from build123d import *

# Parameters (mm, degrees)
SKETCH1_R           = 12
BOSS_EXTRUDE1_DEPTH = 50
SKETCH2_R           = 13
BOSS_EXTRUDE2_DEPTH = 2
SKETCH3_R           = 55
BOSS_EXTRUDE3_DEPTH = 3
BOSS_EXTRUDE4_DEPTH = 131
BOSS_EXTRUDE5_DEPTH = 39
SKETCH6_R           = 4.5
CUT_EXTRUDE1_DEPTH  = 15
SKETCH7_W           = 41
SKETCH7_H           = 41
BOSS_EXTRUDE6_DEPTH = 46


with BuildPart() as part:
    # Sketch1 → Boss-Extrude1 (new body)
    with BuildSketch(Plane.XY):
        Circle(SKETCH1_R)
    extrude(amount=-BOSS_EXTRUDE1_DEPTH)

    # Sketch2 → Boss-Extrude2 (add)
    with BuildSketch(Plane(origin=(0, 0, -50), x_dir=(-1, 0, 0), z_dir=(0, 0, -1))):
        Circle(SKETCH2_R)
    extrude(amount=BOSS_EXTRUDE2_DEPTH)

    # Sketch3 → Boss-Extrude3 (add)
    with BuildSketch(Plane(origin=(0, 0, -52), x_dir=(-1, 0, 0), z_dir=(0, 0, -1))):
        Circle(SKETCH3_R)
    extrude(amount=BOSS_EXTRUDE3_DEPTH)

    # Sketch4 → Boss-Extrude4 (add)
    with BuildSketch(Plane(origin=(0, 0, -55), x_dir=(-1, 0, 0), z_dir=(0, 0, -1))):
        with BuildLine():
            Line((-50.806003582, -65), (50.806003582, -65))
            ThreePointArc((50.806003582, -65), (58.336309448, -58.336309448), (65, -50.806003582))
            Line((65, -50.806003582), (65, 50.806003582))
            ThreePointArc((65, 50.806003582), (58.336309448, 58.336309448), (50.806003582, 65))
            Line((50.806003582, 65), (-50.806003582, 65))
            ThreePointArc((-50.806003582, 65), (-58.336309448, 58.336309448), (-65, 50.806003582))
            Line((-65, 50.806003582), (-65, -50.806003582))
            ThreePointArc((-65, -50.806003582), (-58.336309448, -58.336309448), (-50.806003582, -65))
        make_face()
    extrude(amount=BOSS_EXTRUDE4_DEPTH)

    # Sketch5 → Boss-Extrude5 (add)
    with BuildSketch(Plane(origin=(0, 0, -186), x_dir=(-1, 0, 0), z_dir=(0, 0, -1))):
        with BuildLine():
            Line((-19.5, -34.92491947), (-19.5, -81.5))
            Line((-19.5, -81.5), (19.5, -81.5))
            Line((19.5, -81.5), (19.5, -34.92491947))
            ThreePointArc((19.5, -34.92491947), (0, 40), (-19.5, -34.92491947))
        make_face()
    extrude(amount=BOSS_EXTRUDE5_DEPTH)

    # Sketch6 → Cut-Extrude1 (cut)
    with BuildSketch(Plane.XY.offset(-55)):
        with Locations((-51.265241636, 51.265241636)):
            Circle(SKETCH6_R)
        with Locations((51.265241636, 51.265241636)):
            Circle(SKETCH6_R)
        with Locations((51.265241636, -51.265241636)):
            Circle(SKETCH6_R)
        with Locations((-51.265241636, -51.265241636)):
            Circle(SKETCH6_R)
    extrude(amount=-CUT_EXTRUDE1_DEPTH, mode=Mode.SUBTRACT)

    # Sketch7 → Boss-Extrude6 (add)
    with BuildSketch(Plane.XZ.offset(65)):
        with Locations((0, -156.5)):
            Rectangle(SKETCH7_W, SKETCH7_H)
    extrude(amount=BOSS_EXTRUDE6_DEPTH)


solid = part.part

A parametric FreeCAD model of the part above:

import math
import FreeCAD as App
import Part
import Sketcher


def add_polygon(sketch, points):
    """Adds a closed chain of lines whose ends are joined by coincident constraints."""
    first, n = sketch.GeometryCount, len(points)
    for a, b in zip(points, points[1:] + points[:1]):
        sketch.addGeometry(Part.LineSegment(App.Vector(*a, 0), App.Vector(*b, 0)), False)
    for i in range(n):
        sketch.addConstraint(Sketcher.Constraint("Coincident", first + i, 2, first + (i + 1) % n, 1))

doc = App.newDocument("Part")
body = doc.addObject("PartDesign::Body", "Body")

# Sketch on XY plane
sketch1 = body.newObject("Sketcher::SketchObject", "Sketch")
sketch1.AttachmentSupport = (doc.getObject("XY_Plane"), [""])
sketch1.MapMode = "FlatFace"
sketch1.addGeometry(Part.Circle(App.Vector(0, 0, 0), App.Vector(0, 0, 1), 12), False)
sketch1.addConstraint([
    Sketcher.Constraint("Coincident", 0, 3, -1, 1),
    Sketcher.Constraint("Diameter", 0, 24.0),
])
pad1 = body.newObject("PartDesign::Pad", "Pad")
pad1.Profile = sketch1
pad1.Length = 50
pad1.Reversed = True

# Sketch on XY plane
sketch2 = body.newObject("Sketcher::SketchObject", "Sketch001")
sketch2.AttachmentSupport = (doc.getObject("XY_Plane"), [""])
sketch2.MapMode = "FlatFace"
sketch2.AttachmentOffset = App.Placement(App.Vector(0, 0, -50), App.Rotation())
sketch2.addGeometry(Part.Circle(App.Vector(0, 0, 0), App.Vector(0, 0, 1), 13), False)
sketch2.addConstraint([
    Sketcher.Constraint("Coincident", 0, 3, -1, 1),
    Sketcher.Constraint("Diameter", 0, 26.0),
])
pad2 = body.newObject("PartDesign::Pad", "Pad001")
pad2.Profile = sketch2
pad2.Length = 2
pad2.Reversed = True

# Sketch on XY plane
sketch3 = body.newObject("Sketcher::SketchObject", "Sketch002")
sketch3.AttachmentSupport = (doc.getObject("XY_Plane"), [""])
sketch3.MapMode = "FlatFace"
sketch3.AttachmentOffset = App.Placement(App.Vector(0, 0, -52), App.Rotation())
sketch3.addGeometry(Part.Circle(App.Vector(0, 0, 0), App.Vector(0, 0, 1), 55), False)
sketch3.addConstraint([
    Sketcher.Constraint("Coincident", 0, 3, -1, 1),
    Sketcher.Constraint("Diameter", 0, 110.0),
])
pad3 = body.newObject("PartDesign::Pad", "Pad002")
pad3.Profile = sketch3
pad3.Length = 3
pad3.Reversed = True

# Sketch on XY plane
sketch4 = body.newObject("Sketcher::SketchObject", "Sketch003")
sketch4.AttachmentSupport = (doc.getObject("XY_Plane"), [""])
sketch4.MapMode = "FlatFace"
sketch4.AttachmentOffset = App.Placement(App.Vector(0, 0, -55), App.Rotation())
sketch4.addGeometry([
    Part.LineSegment(App.Vector(51, -65, 0), App.Vector(-51, -65, 0)),  # 0
    Part.ArcOfCircle(Part.Circle(App.Vector(0, 0, 0), App.Vector(0, 0, 1), 82), math.radians(-141.99), math.radians(-128.01)),  # 1
    Part.LineSegment(App.Vector(-65, -51, 0), App.Vector(-65, 51, 0)),  # 2
    Part.ArcOfCircle(Part.Circle(App.Vector(0, 0, 0), App.Vector(0, 0, 1), 82), math.radians(128.01), math.radians(141.99)),  # 3
    Part.LineSegment(App.Vector(-51, 65, 0), App.Vector(51, 65, 0)),  # 4
    Part.ArcOfCircle(Part.Circle(App.Vector(0, 0, 0), App.Vector(0, 0, 1), 82), math.radians(38.01), math.radians(51.99)),  # 5
    Part.LineSegment(App.Vector(65, 51, 0), App.Vector(65, -51, 0)),  # 6
    Part.ArcOfCircle(Part.Circle(App.Vector(0, 0, 0), App.Vector(0, 0, 1), 82), math.radians(-51.99), math.radians(-38.01)),  # 7
], False)
sketch4.addConstraint([
    Sketcher.Constraint("Coincident", 0, 2, 1, 2),
    Sketcher.Constraint("Coincident", 1, 1, 2, 1),
    Sketcher.Constraint("Coincident", 2, 2, 3, 2),
    Sketcher.Constraint("Coincident", 3, 1, 4, 1),
    Sketcher.Constraint("Coincident", 4, 2, 5, 2),
    Sketcher.Constraint("Coincident", 5, 1, 6, 1),
    Sketcher.Constraint("Coincident", 6, 2, 7, 2),
    Sketcher.Constraint("Coincident", 7, 1, 0, 1),
    Sketcher.Constraint("Horizontal", 0),
    Sketcher.Constraint("Vertical", 2),
    Sketcher.Constraint("Horizontal", 4),
    Sketcher.Constraint("Vertical", 6),
    Sketcher.Constraint("Coincident", 1, 3, -1, 1),
    Sketcher.Constraint("Coincident", 3, 3, -1, 1),
    Sketcher.Constraint("Coincident", 5, 3, -1, 1),
    Sketcher.Constraint("Coincident", 7, 3, -1, 1),
    Sketcher.Constraint("Equal", 1, 3),
    Sketcher.Constraint("Equal", 3, 5),
    Sketcher.Constraint("Equal", 5, 7),
    Sketcher.Constraint("Horizontal", 2, 2, 5, 1),
    Sketcher.Constraint("Vertical", 0, 2, 3, 1),
    Sketcher.Constraint("Equal", 4, 2),
    Sketcher.Constraint("Radius", 1, 82.5),
    Sketcher.Constraint("DistanceY", 0, 2, -1, 1, 65.0),
])
pad4 = body.newObject("PartDesign::Pad", "Pad003")
pad4.Profile = sketch4
pad4.Length = 131
pad4.Reversed = True

# Sketch on XY plane
sketch5 = body.newObject("Sketcher::SketchObject", "Sketch004")
sketch5.AttachmentSupport = (doc.getObject("XY_Plane"), [""])
sketch5.MapMode = "FlatFace"
sketch5.AttachmentOffset = App.Placement(App.Vector(0, 0, -186), App.Rotation())
sketch5.addGeometry([
    Part.LineSegment(App.Vector(20, -35, 0), App.Vector(20, -82, 0)),
    Part.LineSegment(App.Vector(20, -82, 0), App.Vector(-20, -82, 0)),
    Part.LineSegment(App.Vector(-20, -82, 0), App.Vector(-20, -35, 0)),
    Part.ArcOfCircle(Part.Circle(App.Vector(0, 0, 0), App.Vector(0, 0, 1), 40), math.radians(-61), math.radians(241)),
], False)
sketch5.addConstraint([
    Sketcher.Constraint("Coincident", 0, 2, 1, 1),
    Sketcher.Constraint("Coincident", 1, 2, 2, 1),
    Sketcher.Constraint("Coincident", 2, 2, 3, 2),
    Sketcher.Constraint("Coincident", 3, 1, 0, 1),
    Sketcher.Constraint("Vertical", 0),
    Sketcher.Constraint("Horizontal", 1),
    Sketcher.Constraint("Vertical", 2),
    Sketcher.Constraint("Coincident", 3, 3, -1, 1),
    Sketcher.Constraint("Horizontal", 2, 2, 3, 1),
    Sketcher.Constraint("Radius", 3, 40.0),
    Sketcher.Constraint("DistanceX", 1, 2, 1, 1, 39.0),
    Sketcher.Constraint("DistanceY", 0, 2, -1, 1, 81.5),
])
pad5 = body.newObject("PartDesign::Pad", "Pad004")
pad5.Profile = sketch5
pad5.Length = 39
pad5.Reversed = True

# Sketch on XY plane
sketch6 = body.newObject("Sketcher::SketchObject", "Sketch005")
sketch6.AttachmentSupport = (doc.getObject("XY_Plane"), [""])
sketch6.MapMode = "FlatFace"
sketch6.AttachmentOffset = App.Placement(App.Vector(0, 0, -55), App.Rotation())
sketch6.addGeometry([
    Part.Circle(App.Vector(-51.3, 51.3, 0), App.Vector(0, 0, 1), 4.5),
    Part.Circle(App.Vector(51.3, 51.3, 0), App.Vector(0, 0, 1), 4.5),
    Part.Circle(App.Vector(51.3, -51.3, 0), App.Vector(0, 0, 1), 4.5),
    Part.Circle(App.Vector(-51.3, -51.3, 0), App.Vector(0, 0, 1), 4.5),
], False)
sketch6.addConstraint([
    Sketcher.Constraint("Equal", 0, 1),
    Sketcher.Constraint("Equal", 1, 2),
    Sketcher.Constraint("Equal", 2, 3),
    Sketcher.Constraint("Symmetric", 0, 3, 2, 3, -1, 1),
    Sketcher.Constraint("Symmetric", 1, 3, 3, 3, -1, 1),
    Sketcher.Constraint("Symmetric", 0, 3, 1, 3, -2),
    Sketcher.Constraint("Diameter", 0, 9.0),
    Sketcher.Constraint("DistanceX", 0, 3, -1, 1, 51.265242),
    Sketcher.Constraint("DistanceY", -1, 1, 0, 3, 51.265242),
])
pocket1 = body.newObject("PartDesign::Pocket", "Pocket")
pocket1.Profile = sketch6
pocket1.Length = 15

# Sketch on XZ plane
sketch7 = body.newObject("Sketcher::SketchObject", "Sketch006")
sketch7.AttachmentSupport = (doc.getObject("XZ_Plane"), [""])
sketch7.MapMode = "FlatFace"
sketch7.AttachmentOffset = App.Placement(App.Vector(0, 0, 65), App.Rotation())
add_polygon(sketch7, [(-20, -136), (-20, -177), (20, -177), (20, -136)])  # lines 0-3
sketch7.addConstraint([
    Sketcher.Constraint("Vertical", 0),
    Sketcher.Constraint("Horizontal", 1),
    Sketcher.Constraint("Vertical", 2),
    Sketcher.Constraint("Horizontal", 3),
    Sketcher.Constraint("Equal", 3, 0),
    Sketcher.Constraint("DistanceX", 1, 1, 1, 2, 41.0),
    Sketcher.Constraint("DistanceY", 0, 2, -1, 1, 177.0),
    Sketcher.Constraint("DistanceX", 0, 2, -1, 1, 20.5),
])
pad6 = body.newObject("PartDesign::Pad", "Pad005")
pad6.Profile = sketch7
pad6.Length = 46

doc.recompute()
